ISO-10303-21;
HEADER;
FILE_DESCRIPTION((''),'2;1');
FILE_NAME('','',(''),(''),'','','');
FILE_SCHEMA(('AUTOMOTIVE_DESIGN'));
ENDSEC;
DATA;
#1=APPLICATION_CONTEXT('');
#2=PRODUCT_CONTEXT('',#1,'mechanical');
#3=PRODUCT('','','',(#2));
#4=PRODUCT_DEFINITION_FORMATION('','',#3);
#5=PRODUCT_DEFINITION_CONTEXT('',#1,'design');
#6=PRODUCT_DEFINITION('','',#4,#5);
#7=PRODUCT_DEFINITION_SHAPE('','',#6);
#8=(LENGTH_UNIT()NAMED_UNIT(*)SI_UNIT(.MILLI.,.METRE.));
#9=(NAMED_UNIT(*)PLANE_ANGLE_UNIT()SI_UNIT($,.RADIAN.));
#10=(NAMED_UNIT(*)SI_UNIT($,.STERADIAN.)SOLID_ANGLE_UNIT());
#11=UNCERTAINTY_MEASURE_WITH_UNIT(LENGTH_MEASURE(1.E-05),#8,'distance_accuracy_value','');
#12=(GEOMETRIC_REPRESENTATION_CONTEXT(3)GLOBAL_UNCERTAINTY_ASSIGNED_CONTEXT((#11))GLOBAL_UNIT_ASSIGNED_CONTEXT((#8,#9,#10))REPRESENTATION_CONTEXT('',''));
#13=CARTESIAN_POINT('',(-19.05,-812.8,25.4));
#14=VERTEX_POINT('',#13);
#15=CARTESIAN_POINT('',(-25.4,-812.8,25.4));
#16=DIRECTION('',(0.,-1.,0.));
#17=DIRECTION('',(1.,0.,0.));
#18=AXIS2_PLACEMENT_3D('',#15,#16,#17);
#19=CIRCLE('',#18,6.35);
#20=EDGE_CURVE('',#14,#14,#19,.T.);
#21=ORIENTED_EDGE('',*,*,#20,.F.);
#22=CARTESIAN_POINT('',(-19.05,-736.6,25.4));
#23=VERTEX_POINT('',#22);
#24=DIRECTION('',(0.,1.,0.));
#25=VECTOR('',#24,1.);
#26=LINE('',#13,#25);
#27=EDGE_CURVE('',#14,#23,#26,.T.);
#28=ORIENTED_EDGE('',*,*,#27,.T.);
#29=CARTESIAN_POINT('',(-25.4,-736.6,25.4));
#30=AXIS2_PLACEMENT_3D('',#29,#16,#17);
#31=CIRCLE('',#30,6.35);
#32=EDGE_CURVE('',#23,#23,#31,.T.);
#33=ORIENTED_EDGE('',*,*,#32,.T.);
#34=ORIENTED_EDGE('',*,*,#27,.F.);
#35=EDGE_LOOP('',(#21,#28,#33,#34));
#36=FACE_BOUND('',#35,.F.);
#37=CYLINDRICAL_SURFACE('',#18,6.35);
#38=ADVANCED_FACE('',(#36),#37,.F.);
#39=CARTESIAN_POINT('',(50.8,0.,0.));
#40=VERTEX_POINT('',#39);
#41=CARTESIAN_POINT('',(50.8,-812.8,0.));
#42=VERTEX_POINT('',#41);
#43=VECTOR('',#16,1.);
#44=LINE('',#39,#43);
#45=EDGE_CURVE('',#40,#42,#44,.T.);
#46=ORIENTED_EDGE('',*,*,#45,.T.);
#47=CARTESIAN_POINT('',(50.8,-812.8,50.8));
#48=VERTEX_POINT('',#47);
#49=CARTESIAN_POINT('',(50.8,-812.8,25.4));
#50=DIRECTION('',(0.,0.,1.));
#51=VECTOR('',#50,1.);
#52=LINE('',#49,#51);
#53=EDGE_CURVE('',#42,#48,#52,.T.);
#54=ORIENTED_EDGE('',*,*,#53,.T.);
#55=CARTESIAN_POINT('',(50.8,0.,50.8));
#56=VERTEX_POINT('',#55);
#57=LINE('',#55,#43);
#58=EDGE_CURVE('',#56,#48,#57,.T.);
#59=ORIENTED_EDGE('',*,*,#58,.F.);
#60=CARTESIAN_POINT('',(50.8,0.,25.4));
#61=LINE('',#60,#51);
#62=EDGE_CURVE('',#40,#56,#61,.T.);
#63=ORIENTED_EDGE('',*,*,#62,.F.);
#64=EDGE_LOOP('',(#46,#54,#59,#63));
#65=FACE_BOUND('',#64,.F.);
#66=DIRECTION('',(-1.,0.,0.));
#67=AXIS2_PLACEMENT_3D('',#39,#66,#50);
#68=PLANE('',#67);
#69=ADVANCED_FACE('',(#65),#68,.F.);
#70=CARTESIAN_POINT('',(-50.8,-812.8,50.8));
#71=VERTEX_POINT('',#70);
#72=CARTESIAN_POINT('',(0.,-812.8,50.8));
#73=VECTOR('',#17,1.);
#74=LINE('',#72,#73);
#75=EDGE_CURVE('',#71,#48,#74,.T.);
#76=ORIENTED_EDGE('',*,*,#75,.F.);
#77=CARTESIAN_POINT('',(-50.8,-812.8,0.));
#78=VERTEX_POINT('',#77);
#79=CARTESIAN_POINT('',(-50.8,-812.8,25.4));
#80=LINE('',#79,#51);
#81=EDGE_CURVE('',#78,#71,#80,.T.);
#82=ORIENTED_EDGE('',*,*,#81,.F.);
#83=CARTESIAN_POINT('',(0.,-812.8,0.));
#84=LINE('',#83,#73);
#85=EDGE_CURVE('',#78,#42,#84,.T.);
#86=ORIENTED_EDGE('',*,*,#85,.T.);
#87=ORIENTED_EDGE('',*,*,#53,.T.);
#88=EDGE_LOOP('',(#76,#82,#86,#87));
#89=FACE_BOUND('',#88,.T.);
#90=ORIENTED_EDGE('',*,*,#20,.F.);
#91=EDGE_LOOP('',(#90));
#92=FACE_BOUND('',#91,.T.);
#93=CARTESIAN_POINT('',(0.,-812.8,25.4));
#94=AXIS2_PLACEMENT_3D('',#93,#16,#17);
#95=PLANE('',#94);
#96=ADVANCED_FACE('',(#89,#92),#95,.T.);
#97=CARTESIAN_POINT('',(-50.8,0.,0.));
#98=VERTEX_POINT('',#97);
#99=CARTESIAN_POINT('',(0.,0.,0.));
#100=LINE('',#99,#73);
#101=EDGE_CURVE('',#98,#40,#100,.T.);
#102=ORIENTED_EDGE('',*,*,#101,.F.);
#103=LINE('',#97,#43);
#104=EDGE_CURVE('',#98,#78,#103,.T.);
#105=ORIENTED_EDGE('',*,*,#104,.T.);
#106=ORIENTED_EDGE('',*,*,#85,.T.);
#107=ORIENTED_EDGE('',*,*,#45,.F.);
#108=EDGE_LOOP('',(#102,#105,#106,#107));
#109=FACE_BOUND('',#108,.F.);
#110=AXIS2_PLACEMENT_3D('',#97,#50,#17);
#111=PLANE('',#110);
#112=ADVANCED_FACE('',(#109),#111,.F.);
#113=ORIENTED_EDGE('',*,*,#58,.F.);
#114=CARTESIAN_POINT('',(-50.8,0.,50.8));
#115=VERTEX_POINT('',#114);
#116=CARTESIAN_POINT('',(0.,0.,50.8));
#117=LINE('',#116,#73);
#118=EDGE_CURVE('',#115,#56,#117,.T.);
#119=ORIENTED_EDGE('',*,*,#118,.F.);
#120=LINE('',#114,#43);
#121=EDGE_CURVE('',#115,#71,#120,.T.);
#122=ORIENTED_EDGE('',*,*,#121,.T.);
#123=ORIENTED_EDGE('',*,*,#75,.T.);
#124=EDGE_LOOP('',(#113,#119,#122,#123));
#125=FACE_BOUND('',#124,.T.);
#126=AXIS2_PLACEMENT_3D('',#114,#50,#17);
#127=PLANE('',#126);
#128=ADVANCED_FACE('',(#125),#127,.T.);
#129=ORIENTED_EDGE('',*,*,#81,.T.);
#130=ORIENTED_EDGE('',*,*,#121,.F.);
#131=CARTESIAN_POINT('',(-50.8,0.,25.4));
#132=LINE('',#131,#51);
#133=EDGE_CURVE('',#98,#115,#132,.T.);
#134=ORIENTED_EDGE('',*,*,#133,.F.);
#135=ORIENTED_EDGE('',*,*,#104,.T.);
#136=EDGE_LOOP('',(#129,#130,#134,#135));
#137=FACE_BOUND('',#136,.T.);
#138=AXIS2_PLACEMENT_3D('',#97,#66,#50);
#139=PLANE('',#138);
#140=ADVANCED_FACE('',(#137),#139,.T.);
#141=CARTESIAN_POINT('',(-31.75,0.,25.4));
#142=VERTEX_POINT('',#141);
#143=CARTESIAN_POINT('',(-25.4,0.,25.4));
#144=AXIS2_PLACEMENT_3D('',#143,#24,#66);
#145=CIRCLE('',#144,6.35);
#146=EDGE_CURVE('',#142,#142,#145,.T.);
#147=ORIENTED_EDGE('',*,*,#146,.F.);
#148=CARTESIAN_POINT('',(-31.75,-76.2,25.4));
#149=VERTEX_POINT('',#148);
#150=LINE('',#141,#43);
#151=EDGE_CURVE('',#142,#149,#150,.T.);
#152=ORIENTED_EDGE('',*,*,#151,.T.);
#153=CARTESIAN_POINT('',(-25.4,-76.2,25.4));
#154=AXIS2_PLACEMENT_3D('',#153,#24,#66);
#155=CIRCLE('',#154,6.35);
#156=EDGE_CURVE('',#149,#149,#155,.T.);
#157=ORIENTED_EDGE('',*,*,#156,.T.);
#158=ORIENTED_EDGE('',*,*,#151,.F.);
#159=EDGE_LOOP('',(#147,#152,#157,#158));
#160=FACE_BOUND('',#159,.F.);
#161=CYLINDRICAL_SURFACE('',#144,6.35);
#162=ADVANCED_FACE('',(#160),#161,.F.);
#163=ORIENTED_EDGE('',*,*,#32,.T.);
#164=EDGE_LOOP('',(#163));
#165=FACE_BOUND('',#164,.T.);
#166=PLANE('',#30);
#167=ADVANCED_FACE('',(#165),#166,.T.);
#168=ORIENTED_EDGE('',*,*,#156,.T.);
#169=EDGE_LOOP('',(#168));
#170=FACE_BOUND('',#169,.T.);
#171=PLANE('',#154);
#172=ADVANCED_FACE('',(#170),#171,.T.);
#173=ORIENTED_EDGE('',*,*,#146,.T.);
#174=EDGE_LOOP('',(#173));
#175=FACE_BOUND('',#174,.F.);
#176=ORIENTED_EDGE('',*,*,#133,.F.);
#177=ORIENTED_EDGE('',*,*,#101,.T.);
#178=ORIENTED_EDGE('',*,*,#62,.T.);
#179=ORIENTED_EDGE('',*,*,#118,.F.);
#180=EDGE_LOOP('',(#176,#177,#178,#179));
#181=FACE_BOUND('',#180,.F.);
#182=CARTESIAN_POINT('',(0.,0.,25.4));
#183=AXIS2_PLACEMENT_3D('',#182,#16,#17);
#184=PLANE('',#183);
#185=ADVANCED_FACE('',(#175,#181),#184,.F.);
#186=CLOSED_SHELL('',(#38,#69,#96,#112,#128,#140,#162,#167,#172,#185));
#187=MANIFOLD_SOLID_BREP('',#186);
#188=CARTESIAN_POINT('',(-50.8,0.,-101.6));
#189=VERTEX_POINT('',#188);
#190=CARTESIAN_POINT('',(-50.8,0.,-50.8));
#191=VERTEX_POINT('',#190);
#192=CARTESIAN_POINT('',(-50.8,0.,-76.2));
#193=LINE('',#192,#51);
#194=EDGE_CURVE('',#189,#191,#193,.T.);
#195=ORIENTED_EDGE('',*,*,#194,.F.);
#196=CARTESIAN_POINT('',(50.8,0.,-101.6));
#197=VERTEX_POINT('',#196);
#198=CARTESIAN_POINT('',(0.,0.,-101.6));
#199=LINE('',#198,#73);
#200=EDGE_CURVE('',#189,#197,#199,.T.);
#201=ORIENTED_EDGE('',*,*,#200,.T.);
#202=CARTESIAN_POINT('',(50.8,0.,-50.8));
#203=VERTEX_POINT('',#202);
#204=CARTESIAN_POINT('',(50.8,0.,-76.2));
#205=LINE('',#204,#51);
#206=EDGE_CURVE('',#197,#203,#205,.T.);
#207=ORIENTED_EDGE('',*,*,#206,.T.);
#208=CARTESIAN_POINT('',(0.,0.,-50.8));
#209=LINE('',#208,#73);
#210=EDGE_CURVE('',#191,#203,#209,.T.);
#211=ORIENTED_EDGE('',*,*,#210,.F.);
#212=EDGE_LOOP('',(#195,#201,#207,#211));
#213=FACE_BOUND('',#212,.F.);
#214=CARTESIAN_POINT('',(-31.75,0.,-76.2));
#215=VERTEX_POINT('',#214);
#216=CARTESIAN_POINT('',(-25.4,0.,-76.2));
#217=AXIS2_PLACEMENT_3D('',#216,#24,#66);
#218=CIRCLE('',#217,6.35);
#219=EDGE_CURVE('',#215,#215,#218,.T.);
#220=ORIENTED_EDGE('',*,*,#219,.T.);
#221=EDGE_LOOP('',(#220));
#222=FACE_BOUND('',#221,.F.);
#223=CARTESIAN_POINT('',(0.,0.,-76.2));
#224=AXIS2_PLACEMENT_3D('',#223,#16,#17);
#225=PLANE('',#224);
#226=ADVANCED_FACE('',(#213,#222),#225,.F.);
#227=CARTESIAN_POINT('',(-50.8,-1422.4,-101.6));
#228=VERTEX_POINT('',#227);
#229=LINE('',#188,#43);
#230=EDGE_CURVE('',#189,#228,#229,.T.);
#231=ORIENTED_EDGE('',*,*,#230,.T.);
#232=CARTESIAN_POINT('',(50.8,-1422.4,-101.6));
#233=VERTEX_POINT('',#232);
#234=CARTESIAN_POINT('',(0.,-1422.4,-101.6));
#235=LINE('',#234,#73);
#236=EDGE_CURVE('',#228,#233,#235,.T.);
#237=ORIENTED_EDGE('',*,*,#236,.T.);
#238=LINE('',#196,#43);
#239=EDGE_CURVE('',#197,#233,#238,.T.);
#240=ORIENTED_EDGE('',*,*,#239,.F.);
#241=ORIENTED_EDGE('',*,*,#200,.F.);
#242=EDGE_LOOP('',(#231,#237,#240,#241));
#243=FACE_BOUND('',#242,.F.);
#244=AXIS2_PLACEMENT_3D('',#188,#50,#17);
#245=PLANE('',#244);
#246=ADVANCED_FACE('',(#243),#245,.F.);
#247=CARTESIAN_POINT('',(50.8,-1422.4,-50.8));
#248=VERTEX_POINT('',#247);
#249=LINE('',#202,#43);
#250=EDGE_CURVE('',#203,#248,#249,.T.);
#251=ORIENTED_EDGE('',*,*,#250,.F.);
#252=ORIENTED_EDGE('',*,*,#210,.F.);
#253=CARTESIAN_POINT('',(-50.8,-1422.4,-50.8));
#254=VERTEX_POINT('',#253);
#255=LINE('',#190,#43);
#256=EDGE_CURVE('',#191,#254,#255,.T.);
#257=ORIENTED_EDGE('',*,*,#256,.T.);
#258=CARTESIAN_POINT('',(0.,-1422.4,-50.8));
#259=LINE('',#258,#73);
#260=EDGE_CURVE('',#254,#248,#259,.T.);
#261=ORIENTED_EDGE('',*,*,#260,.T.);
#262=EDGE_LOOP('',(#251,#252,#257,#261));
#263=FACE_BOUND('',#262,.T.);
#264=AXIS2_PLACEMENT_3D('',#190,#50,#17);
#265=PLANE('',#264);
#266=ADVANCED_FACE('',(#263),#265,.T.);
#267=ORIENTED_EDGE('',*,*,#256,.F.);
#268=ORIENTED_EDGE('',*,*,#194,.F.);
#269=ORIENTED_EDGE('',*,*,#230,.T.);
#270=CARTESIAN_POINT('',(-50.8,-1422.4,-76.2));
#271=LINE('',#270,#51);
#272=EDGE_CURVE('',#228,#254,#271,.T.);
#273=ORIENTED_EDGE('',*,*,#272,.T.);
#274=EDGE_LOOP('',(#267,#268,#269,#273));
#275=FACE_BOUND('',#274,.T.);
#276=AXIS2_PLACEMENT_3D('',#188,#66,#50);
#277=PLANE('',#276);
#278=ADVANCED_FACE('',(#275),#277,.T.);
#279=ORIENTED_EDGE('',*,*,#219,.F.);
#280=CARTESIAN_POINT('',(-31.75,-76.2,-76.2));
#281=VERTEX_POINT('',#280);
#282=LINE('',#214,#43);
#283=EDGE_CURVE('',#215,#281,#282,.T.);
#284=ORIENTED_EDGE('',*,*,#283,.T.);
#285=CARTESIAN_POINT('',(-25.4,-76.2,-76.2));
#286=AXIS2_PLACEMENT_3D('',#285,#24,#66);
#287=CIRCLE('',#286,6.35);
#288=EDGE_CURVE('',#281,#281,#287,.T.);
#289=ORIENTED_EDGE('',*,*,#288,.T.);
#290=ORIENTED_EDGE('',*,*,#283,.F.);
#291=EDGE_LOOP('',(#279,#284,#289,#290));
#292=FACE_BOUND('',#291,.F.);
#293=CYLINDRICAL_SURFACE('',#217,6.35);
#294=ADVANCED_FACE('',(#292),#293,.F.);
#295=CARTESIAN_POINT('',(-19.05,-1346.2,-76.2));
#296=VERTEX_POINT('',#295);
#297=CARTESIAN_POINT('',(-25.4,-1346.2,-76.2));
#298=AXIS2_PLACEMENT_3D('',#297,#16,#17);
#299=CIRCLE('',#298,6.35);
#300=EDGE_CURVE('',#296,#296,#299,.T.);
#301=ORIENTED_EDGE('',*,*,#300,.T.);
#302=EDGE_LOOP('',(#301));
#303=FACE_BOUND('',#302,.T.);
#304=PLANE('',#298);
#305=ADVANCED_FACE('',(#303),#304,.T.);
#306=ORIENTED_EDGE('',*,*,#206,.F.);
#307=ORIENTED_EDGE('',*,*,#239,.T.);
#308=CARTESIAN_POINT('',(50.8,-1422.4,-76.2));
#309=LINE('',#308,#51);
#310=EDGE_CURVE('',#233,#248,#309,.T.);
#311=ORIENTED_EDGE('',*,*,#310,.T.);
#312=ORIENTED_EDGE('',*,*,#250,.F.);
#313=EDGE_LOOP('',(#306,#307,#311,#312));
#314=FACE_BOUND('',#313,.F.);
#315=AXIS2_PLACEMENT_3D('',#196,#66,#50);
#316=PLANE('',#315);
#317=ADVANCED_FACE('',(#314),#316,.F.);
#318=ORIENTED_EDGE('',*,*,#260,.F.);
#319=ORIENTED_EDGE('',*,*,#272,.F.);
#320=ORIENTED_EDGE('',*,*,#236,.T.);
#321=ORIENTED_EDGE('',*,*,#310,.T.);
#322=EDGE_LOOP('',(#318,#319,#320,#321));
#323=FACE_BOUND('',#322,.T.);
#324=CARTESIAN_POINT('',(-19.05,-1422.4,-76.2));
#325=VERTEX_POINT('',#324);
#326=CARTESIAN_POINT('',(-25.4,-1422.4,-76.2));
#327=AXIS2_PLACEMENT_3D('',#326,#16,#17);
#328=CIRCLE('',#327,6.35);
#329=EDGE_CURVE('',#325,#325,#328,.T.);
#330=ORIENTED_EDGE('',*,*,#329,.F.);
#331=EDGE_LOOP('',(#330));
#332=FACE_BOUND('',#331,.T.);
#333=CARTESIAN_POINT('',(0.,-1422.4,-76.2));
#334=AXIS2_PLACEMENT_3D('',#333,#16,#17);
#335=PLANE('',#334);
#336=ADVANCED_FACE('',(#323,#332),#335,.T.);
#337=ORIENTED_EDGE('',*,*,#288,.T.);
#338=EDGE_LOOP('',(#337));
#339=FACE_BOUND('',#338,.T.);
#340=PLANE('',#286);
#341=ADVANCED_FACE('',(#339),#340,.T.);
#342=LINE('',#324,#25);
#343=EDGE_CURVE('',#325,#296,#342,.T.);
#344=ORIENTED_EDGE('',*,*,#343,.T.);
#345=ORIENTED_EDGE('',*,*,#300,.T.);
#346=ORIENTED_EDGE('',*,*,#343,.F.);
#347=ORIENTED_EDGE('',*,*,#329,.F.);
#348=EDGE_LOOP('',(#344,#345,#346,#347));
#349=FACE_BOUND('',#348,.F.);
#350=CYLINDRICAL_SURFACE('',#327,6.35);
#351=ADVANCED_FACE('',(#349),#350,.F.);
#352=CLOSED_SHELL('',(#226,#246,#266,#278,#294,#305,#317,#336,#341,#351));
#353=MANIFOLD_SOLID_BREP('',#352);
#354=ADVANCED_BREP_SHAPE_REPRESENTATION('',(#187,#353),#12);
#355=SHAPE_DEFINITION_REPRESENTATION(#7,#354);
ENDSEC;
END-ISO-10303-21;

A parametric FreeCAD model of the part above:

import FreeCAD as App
import Part
import Sketcher
Q = App.Units.Quantity


def add_polygon(sketch, points):
    """Adds a closed chain of lines whose ends are joined by coincident constraints."""
    first, n = sketch.GeometryCount, len(points)
    for a, b in zip(points, points[1:] + points[:1]):
        sketch.addGeometry(Part.LineSegment(App.Vector(*a, 0), App.Vector(*b, 0)), False)
    for i in range(n):
        sketch.addConstraint(Sketcher.Constraint("Coincident", first + i, 2, first + (i + 1) % n, 1))

doc = App.newDocument("Part")
body = doc.addObject("PartDesign::Body", "Body")

sketch1 = body.newObject("Sketcher::SketchObject", "Sketch")
sketch1.AttachmentSupport = (doc.getObject("XZ_Plane"), [""])
sketch1.MapMode = "FlatFace"
add_polygon(sketch1, [(-51, 51), (-51, 0), (51, 0), (51, 51)])
sketch1.addConstraint([
    Sketcher.Constraint("Vertical", 0),
    Sketcher.Constraint("Horizontal", 1),
    Sketcher.Constraint("Vertical", 2),
    Sketcher.Constraint("Horizontal", 3),
    Sketcher.Constraint("Symmetric", 0, 2, 1, 2, -1, 1),
    Sketcher.Constraint("DistanceX", 1, 1, 1, 2, Q("4 in")),
    Sketcher.Constraint("DistanceY", 0, 2, 0, 1, Q("2 in")),
])
pad1 = body.newObject("PartDesign::Pad", "Pad")
pad1.Profile = sketch1
pad1.Length = Q("32 in")

sketch2 = body.newObject("Sketcher::SketchObject", "Sketch001")
sketch2.AttachmentSupport = (doc.getObject("XZ_Plane"), [""])
sketch2.MapMode = "FlatFace"
sketch2.AttachmentOffset = App.Placement(App.Vector(0, 0, 32 * 25.4), App.Rotation())
sketch2.addGeometry(Part.Circle(App.Vector(-25, 25, 0), App.Vector(0, 0, 1), 6), False)
sketch2.addConstraint([
    Sketcher.Constraint("Diameter", 0, Q("0.5 in")),
    Sketcher.Constraint("DistanceX", 0, 3, -1, 1, Q("1 in")),
    Sketcher.Constraint("DistanceY", -1, 1, 0, 3, Q("1 in")),
])
pocket1 = body.newObject("PartDesign::Pocket", "Pocket")
pocket1.Profile = sketch2
pocket1.Length = Q("3 in")

sketch3 = body.newObject("Sketcher::SketchObject", "Sketch002")
sketch3.AttachmentSupport = (doc.getObject("XZ_Plane"), [""])
sketch3.MapMode = "FlatFace"
sketch3.addGeometry(Part.Circle(App.Vector(-25, 25, 0), App.Vector(0, 0, 1), 6), False)
sketch3.addConstraint([
    Sketcher.Constraint("Diameter", 0, Q("0.5 in")),
    Sketcher.Constraint("DistanceX", 0, 3, -1, 1, Q("1 in")),
    Sketcher.Constraint("DistanceY", -1, 1, 0, 3, Q("1 in")),
])
pocket2 = body.newObject("PartDesign::Pocket", "Pocket001")
pocket2.Profile = sketch3
pocket2.Length = Q("3 in")
pocket2.Reversed = True
body2 = doc.addObject("PartDesign::Body", "Body001")

sketch4 = body2.newObject("Sketcher::SketchObject", "Sketch003")
sketch4.AttachmentSupport = (doc.getObject("XZ_Plane001"), [""])
sketch4.MapMode = "FlatFace"
add_polygon(sketch4, [(-51, -51), (-51, -102), (51, -102), (51, -51)])
sketch4.addConstraint([
    Sketcher.Constraint("Vertical", 0),
    Sketcher.Constraint("Horizontal", 1),
    Sketcher.Constraint("Vertical", 2),
    Sketcher.Constraint("Horizontal", 3),
    Sketcher.Constraint("DistanceX", 1, 1, 1, 2, Q("4 in")),
    Sketcher.Constraint("DistanceY", 0, 2, 0, 1, Q("2 in")),
    Sketcher.Constraint("DistanceX", 0, 2, -1, 1, Q("2 in")),
    Sketcher.Constraint("DistanceY", 0, 2, -1, 1, Q("4 in")),
])
pad2 = body2.newObject("PartDesign::Pad", "Pad001")
pad2.Profile = sketch4
pad2.Length = Q("56 in")

sketch5 = body2.newObject("Sketcher::SketchObject", "Sketch004")
sketch5.AttachmentSupport = (doc.getObject("XZ_Plane001"), [""])
sketch5.MapMode = "FlatFace"
sketch5.AttachmentOffset = App.Placement(App.Vector(0, 0, 56 * 25.4), App.Rotation())
sketch5.addGeometry(Part.Circle(App.Vector(-25, -76, 0), App.Vector(0, 0, 1), 6), False)
sketch5.addConstraint([
    Sketcher.Constraint("Diameter", 0, Q("0.5 in")),
    Sketcher.Constraint("DistanceX", 0, 3, -1, 1, Q("1 in")),
    Sketcher.Constraint("DistanceY", 0, 3, -1, 1, Q("3 in")),
])
pocket3 = body2.newObject("PartDesign::Pocket", "Pocket002")
pocket3.Profile = sketch5
pocket3.Length = Q("3 in")

sketch6 = body2.newObject("Sketcher::SketchObject", "Sketch005")
sketch6.AttachmentSupport = (doc.getObject("XZ_Plane001"), [""])
sketch6.MapMode = "FlatFace"
sketch6.addGeometry(Part.Circle(App.Vector(-25, -76, 0), App.Vector(0, 0, 1), 6), False)
sketch6.addConstraint([
    Sketcher.Constraint("Diameter", 0, Q("0.5 in")),
    Sketcher.Constraint("DistanceX", 0, 3, -1, 1, Q("1 in")),
    Sketcher.Constraint("DistanceY", 0, 3, -1, 1, Q("3 in")),
])
pocket4 = body2.newObject("PartDesign::Pocket", "Pocket003")
pocket4.Profile = sketch6
pocket4.Length = Q("3 in")
pocket4.Reversed = True

doc.recompute()
